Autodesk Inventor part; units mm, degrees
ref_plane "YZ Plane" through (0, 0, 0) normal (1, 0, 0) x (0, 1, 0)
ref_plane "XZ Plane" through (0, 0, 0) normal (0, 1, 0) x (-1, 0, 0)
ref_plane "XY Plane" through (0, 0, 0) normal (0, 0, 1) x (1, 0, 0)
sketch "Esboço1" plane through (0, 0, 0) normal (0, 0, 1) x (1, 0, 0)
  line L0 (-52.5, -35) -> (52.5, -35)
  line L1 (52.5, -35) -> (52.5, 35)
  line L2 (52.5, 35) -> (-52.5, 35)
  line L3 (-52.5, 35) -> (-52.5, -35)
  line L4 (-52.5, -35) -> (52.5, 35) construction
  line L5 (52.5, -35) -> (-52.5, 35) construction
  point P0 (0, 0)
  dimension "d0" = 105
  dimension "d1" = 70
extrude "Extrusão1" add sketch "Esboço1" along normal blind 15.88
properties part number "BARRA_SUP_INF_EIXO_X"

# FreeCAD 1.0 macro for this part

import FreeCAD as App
import Part
import Sketcher
from FreeCAD import Vector


def add_polygon(sketch, points):
    """Adds a closed chain of lines whose ends are joined by coincident constraints."""
    first, n = sketch.GeometryCount, len(points)
    for a, b in zip(points, points[1:] + points[:1]):
        sketch.addGeometry(Part.LineSegment(App.Vector(*a, 0), App.Vector(*b, 0)), False)
    for i in range(n):
        sketch.addConstraint(Sketcher.Constraint("Coincident", first + i, 2, first + (i + 1) % n, 1))

doc = App.newDocument("Part")
body = doc.addObject("PartDesign::Body", "Body")

# Sketch on XY plane
sketch1 = body.newObject("Sketcher::SketchObject", "Sketch")
sketch1.AttachmentSupport = (doc.getObject("XY_Plane"), [""])
sketch1.MapMode = "FlatFace"
add_polygon(sketch1, [(-52.5, 35), (-52.5, -35), (52.5, -35), (52.5, 35)])  # lines 0-3
sketch1.addConstraint(Sketcher.Constraint("Vertical", 0))
sketch1.addConstraint(Sketcher.Constraint("Horizontal", 1))
sketch1.addConstraint(Sketcher.Constraint("Vertical", 2))
sketch1.addConstraint(Sketcher.Constraint("Horizontal", 3))
sketch1.addConstraint(Sketcher.Constraint("Symmetric", 0, 2, 2, 2, -1, 1))
sketch1.addConstraint(Sketcher.Constraint("DistanceX", 1, 1, 1, 2, 105.0))
sketch1.addConstraint(Sketcher.Constraint("DistanceY", 0, 2, 0, 1, 70.0))
pad1 = body.newObject("PartDesign::Pad", "Pad")
pad1.Profile = sketch1
pad1.Length = 15.88

doc.recompute()
